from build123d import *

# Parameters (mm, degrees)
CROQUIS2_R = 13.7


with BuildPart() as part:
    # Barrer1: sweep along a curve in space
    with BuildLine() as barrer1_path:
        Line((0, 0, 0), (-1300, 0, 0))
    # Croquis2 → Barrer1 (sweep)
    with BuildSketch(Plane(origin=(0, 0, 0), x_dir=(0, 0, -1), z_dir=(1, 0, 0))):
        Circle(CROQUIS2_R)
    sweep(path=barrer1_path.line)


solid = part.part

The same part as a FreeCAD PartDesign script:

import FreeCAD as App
import Part
import Sketcher

V = App.Vector

doc = App.newDocument("Part")
params = doc.addObject("Spreadsheet::Sheet", "Params")
for row, (alias, value) in enumerate([
    ("sketch1_diameter", "27.4 mm"),
    ("sketch2_width", "1300 mm"),
], start=1):
    params.set(f"A{row}", alias)
    params.set(f"B{row}", "=" + value)
    params.setAlias(f"B{row}", alias)

body = doc.addObject("PartDesign::Body", "Body")

# Sketch on YZ plane
sketch1 = body.newObject("Sketcher::SketchObject", "Sketch")
sketch1.AttachmentSupport = (doc.getObject("YZ_Plane"), [""])
sketch1.MapMode = "FlatFace"
sketch1.addGeometry(Part.Circle(V(0, 0, 0), V(0, 0, 1), 13.7), False)
sketch1.addConstraint(Sketcher.Constraint("Coincident", 0, 3, -1, 1))
sketch1.addConstraint(Sketcher.Constraint("Diameter", 0, 27.4))
sketch1.setExpression("Constraints[1]", "Params.sketch1_diameter")

# Sketch on XY plane
sketch2 = body.newObject("Sketcher::SketchObject", "Sketch001")
sketch2.AttachmentSupport = (doc.getObject("XY_Plane"), [""])
sketch2.MapMode = "FlatFace"
sketch2.addGeometry(Part.LineSegment(V(0, 0, 0), V(-1300, 0, 0)), False)
sketch2.addConstraint(Sketcher.Constraint("Horizontal", 0))
sketch2.addConstraint(Sketcher.Constraint("Coincident", 0, 1, -1, 1))
sketch2.addConstraint(Sketcher.Constraint("DistanceX", 0, 2, 0, 1, 1300.0))
sketch2.setExpression("Constraints[2]", "Params.sketch2_width")
doc.recompute()

additivepipe = body.newObject("PartDesign::AdditivePipe", "AdditivePipe")
additivepipe.Profile = sketch1
additivepipe.Spine = (sketch2, ["Edge1"])

doc.recompute()
